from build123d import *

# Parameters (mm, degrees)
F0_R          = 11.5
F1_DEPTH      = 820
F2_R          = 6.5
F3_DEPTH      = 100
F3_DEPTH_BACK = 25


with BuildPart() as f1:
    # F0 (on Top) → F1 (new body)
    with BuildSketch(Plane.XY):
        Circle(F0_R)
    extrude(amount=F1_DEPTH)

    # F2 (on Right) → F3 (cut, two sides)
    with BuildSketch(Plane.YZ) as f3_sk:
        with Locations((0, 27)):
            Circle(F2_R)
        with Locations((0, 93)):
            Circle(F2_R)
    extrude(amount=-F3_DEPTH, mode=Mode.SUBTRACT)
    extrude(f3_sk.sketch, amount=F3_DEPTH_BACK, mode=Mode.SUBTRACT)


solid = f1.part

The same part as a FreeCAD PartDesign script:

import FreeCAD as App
import Part
import Sketcher
from FreeCAD import Vector
Q = App.Units.Quantity

doc = App.newDocument("Part")
body = doc.addObject("PartDesign::Body", "Body")

# Sketch on XY plane
sketch1 = doc.addObject("Sketcher::SketchObject", "Sketch")
body.addObject(sketch1)
sketch1.AttachmentSupport = (doc.XY_Plane, [""])
sketch1.MapMode = "FlatFace"
sketch1.addGeometry(Part.Circle(Vector(0, 0, 0), Vector(0, 0, 1), 12), False)
sketch1.addConstraint(Sketcher.Constraint("Coincident", 0, 3, -1, 1))
sketch1.addConstraint(Sketcher.Constraint("Diameter", 0, Q("23 mm")))
pad1 = doc.addObject("PartDesign::Pad", "Pad")
body.addObject(pad1)
pad1.Profile = sketch1
pad1.Length = 820

# Sketch on YZ plane
sketch2 = doc.addObject("Sketcher::SketchObject", "Sketch001")
body.addObject(sketch2)
sketch2.AttachmentSupport = (doc.YZ_Plane, [""])
sketch2.MapMode = "FlatFace"
sketch2.addGeometry(Part.Circle(Vector(0, 27, 0), Vector(0, 0, 1), 6), False)
sketch2.addGeometry(Part.Circle(Vector(0, 93, 0), Vector(0, 0, 1), 6), False)
sketch2.addConstraint(Sketcher.Constraint("Equal", 0, 1))
sketch2.addConstraint(Sketcher.Constraint("PointOnObject", 0, 3, -2))
sketch2.addConstraint(Sketcher.Constraint("PointOnObject", 1, 3, -2))
sketch2.addConstraint(Sketcher.Constraint("Diameter", 0, Q("13 mm")))
sketch2.addConstraint(Sketcher.Constraint("DistanceY", -1, 1, 0, 3, Q("27 mm")))
sketch2.addConstraint(Sketcher.Constraint("DistanceY", -1, 1, 1, 3, Q("93 mm")))
pocket1 = doc.addObject("PartDesign::Pocket", "Pocket")
body.addObject(pocket1)
pocket1.Profile = sketch2
pocket1.Type = "ThroughAll"
pocket1.Midplane = True

doc.recompute()
